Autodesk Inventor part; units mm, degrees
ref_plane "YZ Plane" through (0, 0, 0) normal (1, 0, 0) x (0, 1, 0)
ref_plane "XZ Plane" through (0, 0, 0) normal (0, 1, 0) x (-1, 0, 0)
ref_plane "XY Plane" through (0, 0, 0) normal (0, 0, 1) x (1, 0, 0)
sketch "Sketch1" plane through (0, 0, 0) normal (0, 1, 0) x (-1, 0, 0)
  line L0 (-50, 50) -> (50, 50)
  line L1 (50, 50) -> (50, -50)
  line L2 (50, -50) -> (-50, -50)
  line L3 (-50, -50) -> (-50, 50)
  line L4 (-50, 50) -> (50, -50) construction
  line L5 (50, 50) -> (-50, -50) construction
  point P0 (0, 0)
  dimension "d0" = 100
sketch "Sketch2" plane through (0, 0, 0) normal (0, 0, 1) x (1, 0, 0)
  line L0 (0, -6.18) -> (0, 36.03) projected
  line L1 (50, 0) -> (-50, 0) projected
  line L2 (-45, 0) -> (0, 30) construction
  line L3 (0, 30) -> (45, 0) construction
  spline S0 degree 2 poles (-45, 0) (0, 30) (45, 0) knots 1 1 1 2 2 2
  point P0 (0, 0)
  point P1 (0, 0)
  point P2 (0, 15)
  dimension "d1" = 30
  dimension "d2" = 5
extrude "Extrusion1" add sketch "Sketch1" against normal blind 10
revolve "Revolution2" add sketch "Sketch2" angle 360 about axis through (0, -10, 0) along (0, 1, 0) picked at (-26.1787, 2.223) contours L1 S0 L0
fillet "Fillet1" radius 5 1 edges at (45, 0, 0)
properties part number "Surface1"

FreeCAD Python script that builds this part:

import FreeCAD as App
import Part
import Sketcher
Q = App.Units.Quantity


def edges_at(feature, points):
    """Names of the edges that pass closest to the given points."""
    edges = feature.Shape.Edges
    near = lambda p: min(range(len(edges)), key=lambda i: edges[i].distToShape(Part.Vertex(*p))[0])
    return sorted({f"Edge{near(p) + 1}" for p in points})


def add_polygon(sketch, points):
    """Adds a closed chain of lines whose ends are joined by coincident constraints."""
    first, n = sketch.GeometryCount, len(points)
    for a, b in zip(points, points[1:] + points[:1]):
        sketch.addGeometry(Part.LineSegment(App.Vector(*a, 0), App.Vector(*b, 0)), False)
    for i in range(n):
        sketch.addConstraint(Sketcher.Constraint("Coincident", first + i, 2, first + (i + 1) % n, 1))

doc = App.newDocument("Part")
body = doc.addObject("PartDesign::Body", "Body")

# Sketch on XZ plane
sketch1 = doc.addObject("Sketcher::SketchObject", "Sketch")
body.addObject(sketch1)
sketch1.AttachmentSupport = (doc.XZ_Plane, [""])
sketch1.MapMode = "FlatFace"
add_polygon(sketch1, [(-50, 50), (50, 50), (50, -50), (-50, -50)])  # lines 0-3
sketch1.addConstraint([
    Sketcher.Constraint("Horizontal", 0),
    Sketcher.Constraint("Vertical", 1),
    Sketcher.Constraint("Horizontal", 2),
    Sketcher.Constraint("Vertical", 3),
    Sketcher.Constraint("Symmetric", 0, 2, 2, 2, -1, 1),
    Sketcher.Constraint("Equal", 2, 1),
    Sketcher.Constraint("DistanceX", 0, 1, 0, 2, Q("100 mm")),
])
pad1 = doc.addObject("PartDesign::Pad", "Pad")
body.addObject(pad1)
pad1.Profile = sketch1
pad1.Length = 10

# Sketch on XY plane
sketch2 = doc.addObject("Sketcher::SketchObject", "Sketch001")
body.addObject(sketch2)
sketch2.AttachmentSupport = (doc.XY_Plane, [""])
sketch2.MapMode = "FlatFace"
sketch2.addGeometry([
    Part.LineSegment(App.Vector(-45, 0, 0), App.Vector(0, 0, 0)),
    Part.LineSegment(App.Vector(0, 0, 0), App.Vector(0, 15, 0)),
    Part.BSplineCurve([App.Vector(-45, 0, 0), App.Vector(-22.5, 15, 0), App.Vector(0, 15, 0)], [3, 3], [1, 1.5], False, 2, [1, 1, 1], False),
], False)
sketch2.addConstraint([
    Sketcher.Constraint("Block", 2),
    Sketcher.Constraint("Coincident", 0, 2, 1, 1),
    Sketcher.Constraint("Coincident", 1, 2, 2, 2),
    Sketcher.Constraint("Coincident", 2, 1, 0, 1),
    Sketcher.Constraint("Horizontal", 0),
    Sketcher.Constraint("Vertical", 1),
])
revolution = doc.addObject("PartDesign::Revolution", "Revolution")
body.addObject(revolution)
revolution.Profile = sketch2
revolution.ReferenceAxis = (sketch2, ["V_Axis"])
revolution.Angle = 360
doc.recompute()

fillet = doc.addObject("PartDesign::Fillet", "Fillet")
body.addObject(fillet)
fillet.Base = (revolution, edges_at(revolution, [(45, 0, 0)]))
fillet.Radius = 5

doc.recompute()
